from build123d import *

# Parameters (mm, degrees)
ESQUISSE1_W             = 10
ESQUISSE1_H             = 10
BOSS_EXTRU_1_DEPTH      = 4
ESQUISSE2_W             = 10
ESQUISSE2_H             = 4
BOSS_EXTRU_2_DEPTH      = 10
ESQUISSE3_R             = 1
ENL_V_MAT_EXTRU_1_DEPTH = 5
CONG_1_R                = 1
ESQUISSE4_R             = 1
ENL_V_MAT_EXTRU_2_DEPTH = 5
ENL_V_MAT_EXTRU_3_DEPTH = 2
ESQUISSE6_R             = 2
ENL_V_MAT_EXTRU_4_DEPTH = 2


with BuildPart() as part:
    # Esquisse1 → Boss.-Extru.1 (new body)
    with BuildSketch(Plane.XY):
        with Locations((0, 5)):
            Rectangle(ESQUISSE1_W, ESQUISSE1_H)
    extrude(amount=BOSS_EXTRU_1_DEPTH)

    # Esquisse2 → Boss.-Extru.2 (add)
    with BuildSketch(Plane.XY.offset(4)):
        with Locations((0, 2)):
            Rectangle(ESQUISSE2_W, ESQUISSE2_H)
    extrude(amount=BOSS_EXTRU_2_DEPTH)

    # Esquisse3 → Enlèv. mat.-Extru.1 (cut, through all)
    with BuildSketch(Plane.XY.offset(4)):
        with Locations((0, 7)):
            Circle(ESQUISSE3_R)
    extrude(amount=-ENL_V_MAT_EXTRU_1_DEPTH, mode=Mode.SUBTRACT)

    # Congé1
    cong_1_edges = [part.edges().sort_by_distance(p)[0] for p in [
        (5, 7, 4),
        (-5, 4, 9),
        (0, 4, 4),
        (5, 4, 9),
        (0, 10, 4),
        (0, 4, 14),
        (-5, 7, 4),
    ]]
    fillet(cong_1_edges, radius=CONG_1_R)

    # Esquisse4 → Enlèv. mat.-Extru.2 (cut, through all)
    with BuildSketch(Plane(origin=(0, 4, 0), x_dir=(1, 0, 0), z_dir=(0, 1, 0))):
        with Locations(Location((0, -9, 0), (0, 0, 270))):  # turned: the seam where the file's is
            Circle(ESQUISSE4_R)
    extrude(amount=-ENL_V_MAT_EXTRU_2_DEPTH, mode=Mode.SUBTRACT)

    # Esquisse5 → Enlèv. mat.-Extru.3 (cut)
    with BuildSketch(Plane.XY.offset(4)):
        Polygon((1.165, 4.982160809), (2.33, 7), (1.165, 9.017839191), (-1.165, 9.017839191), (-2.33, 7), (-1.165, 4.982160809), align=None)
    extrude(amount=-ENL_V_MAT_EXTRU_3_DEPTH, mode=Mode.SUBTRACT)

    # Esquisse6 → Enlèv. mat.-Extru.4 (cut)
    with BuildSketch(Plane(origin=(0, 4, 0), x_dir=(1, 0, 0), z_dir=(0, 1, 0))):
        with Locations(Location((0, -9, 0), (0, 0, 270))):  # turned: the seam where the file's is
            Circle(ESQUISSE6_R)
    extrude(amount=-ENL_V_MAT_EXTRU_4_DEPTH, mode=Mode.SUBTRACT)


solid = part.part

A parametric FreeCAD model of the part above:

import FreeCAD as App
import Part
import Sketcher
from FreeCAD import Vector
Q = App.Units.Quantity


def edges_at(feature, points):
    """Names of the edges that pass closest to the given points."""
    edges = feature.Shape.Edges
    near = lambda p: min(range(len(edges)), key=lambda i: edges[i].distToShape(Part.Vertex(*p))[0])
    return sorted({f"Edge{near(p) + 1}" for p in points})

doc = App.newDocument("Part")
body = doc.addObject("PartDesign::Body", "Body")

sketch1 = body.newObject("Sketcher::SketchObject", "Sketch")
sketch1.AttachmentSupport = (doc.getObject("XY_Plane"), [""])
sketch1.MapMode = "FlatFace"
sketch1.addGeometry([
    Part.LineSegment(Vector(-5, 10, 0), Vector(-5, 0, 0)),
    Part.LineSegment(Vector(-5, 0, 0), Vector(5, 0, 0)),
    Part.LineSegment(Vector(5, 0, 0), Vector(5, 10, 0)),
    Part.LineSegment(Vector(5, 10, 0), Vector(-5, 10, 0)),
], False)
sketch1.addConstraint([
    Sketcher.Constraint("Coincident", 0, 2, 1, 1),
    Sketcher.Constraint("Coincident", 1, 2, 2, 1),
    Sketcher.Constraint("Coincident", 2, 2, 3, 1),
    Sketcher.Constraint("Coincident", 3, 2, 0, 1),
    Sketcher.Constraint("Vertical", 0),
    Sketcher.Constraint("Horizontal", 1),
    Sketcher.Constraint("Vertical", 2),
    Sketcher.Constraint("Horizontal", 3),
    Sketcher.Constraint("Symmetric", 0, 2, 1, 2, -1, 1),
    Sketcher.Constraint("Equal", 3, 0),
    Sketcher.Constraint("DistanceX", 1, 1, 1, 2, Q("10 mm")),
])
pad1 = body.newObject("PartDesign::Pad", "Pad")
pad1.Profile = sketch1
pad1.Length = 4

sketch2 = body.newObject("Sketcher::SketchObject", "Sketch001")
sketch2.AttachmentSupport = (doc.getObject("XY_Plane"), [""])
sketch2.MapMode = "FlatFace"
sketch2.AttachmentOffset = App.Placement(Vector(0, 0, 4), App.Rotation())
sketch2.addGeometry([
    Part.LineSegment(Vector(-5, 4, 0), Vector(-5, 0, 0)),
    Part.LineSegment(Vector(-5, 0, 0), Vector(5, 0, 0)),
    Part.LineSegment(Vector(5, 0, 0), Vector(5, 4, 0)),
    Part.LineSegment(Vector(5, 4, 0), Vector(-5, 4, 0)),
], False)
sketch2.addConstraint([
    Sketcher.Constraint("Coincident", 0, 2, 1, 1),
    Sketcher.Constraint("Coincident", 1, 2, 2, 1),
    Sketcher.Constraint("Coincident", 2, 2, 3, 1),
    Sketcher.Constraint("Coincident", 3, 2, 0, 1),
    Sketcher.Constraint("Vertical", 0),
    Sketcher.Constraint("Horizontal", 1),
    Sketcher.Constraint("Vertical", 2),
    Sketcher.Constraint("Horizontal", 3),
    Sketcher.Constraint("Symmetric", 0, 2, 1, 2, -1, 1),
    Sketcher.Constraint("DistanceX", 1, 1, 1, 2, Q("10 mm")),
    Sketcher.Constraint("DistanceY", 0, 2, 0, 1, Q("4 mm")),
])
pad2 = body.newObject("PartDesign::Pad", "Pad001")
pad2.Profile = sketch2
pad2.Length = 10

sketch3 = body.newObject("Sketcher::SketchObject", "Sketch002")
sketch3.AttachmentSupport = (doc.getObject("XY_Plane"), [""])
sketch3.MapMode = "FlatFace"
sketch3.AttachmentOffset = App.Placement(Vector(0, 0, 4), App.Rotation())
sketch3.addGeometry(Part.Circle(Vector(0, 7, 0), Vector(0, 0, 1), 1), False)
sketch3.addConstraint([
    Sketcher.Constraint("PointOnObject", 0, 3, -2),
    Sketcher.Constraint("Diameter", 0, Q("2 mm")),
    Sketcher.Constraint("DistanceY", -1, 1, 0, 3, Q("7 mm")),
])
pocket1 = body.newObject("PartDesign::Pocket", "Pocket")
pocket1.Profile = sketch3
pocket1.Type = "ThroughAll"
doc.recompute()

fillet = body.newObject("PartDesign::Fillet", "Fillet")
fillet.Base = (pocket1, edges_at(pocket1, [
    (5, 7, 4),
    (-5, 4, 9),
    (0, 4, 4),
    (5, 4, 9),
    (0, 10, 4),
    (0, 4, 14),
    (-5, 7, 4),
]))
fillet.Radius = 1

sketch4 = body.newObject("Sketcher::SketchObject", "Sketch003")
sketch4.AttachmentSupport = (doc.getObject("XZ_Plane"), [""])
sketch4.MapMode = "FlatFace"
sketch4.AttachmentOffset = App.Placement(Vector(0, 0, -4), App.Rotation())
sketch4.addGeometry(Part.Circle(Vector(0, 9, 0), Vector(0, 0, 1), 1), False)
sketch4.addConstraint([
    Sketcher.Constraint("PointOnObject", 0, 3, -2),
    Sketcher.Constraint("Diameter", 0, Q("2 mm")),
    Sketcher.Constraint("DistanceY", -1, 1, 0, 3, Q("9 mm")),
])
pocket2 = body.newObject("PartDesign::Pocket", "Pocket001")
pocket2.Profile = sketch4
pocket2.Type = "ThroughAll"
pocket2.Reversed = True

sketch5 = body.newObject("Sketcher::SketchObject", "Sketch004")
sketch5.AttachmentSupport = (doc.getObject("XY_Plane"), [""])
sketch5.MapMode = "FlatFace"
sketch5.AttachmentOffset = App.Placement(Vector(0, 0, 4), App.Rotation())
sketch5.addGeometry([
    Part.LineSegment(Vector(1.2, 5, 0), Vector(2.3, 7, 0)),
    Part.LineSegment(Vector(2.3, 7, 0), Vector(1.2, 9, 0)),
    Part.LineSegment(Vector(1.2, 9, 0), Vector(-1.2, 9, 0)),
    Part.LineSegment(Vector(-1.2, 9, 0), Vector(-2.3, 7, 0)),
    Part.LineSegment(Vector(-2.3, 7, 0), Vector(-1.2, 5, 0)),
    Part.LineSegment(Vector(-1.2, 5, 0), Vector(1.2, 5, 0)),
], False)
sketch5.addConstraint([
    Sketcher.Constraint("Coincident", 0, 2, 1, 1),
    Sketcher.Constraint("Coincident", 1, 2, 2, 1),
    Sketcher.Constraint("Coincident", 2, 2, 3, 1),
    Sketcher.Constraint("Coincident", 3, 2, 4, 1),
    Sketcher.Constraint("Coincident", 4, 2, 5, 1),
    Sketcher.Constraint("Coincident", 5, 2, 0, 1),
    Sketcher.Constraint("Horizontal", 2),
    Sketcher.Constraint("Horizontal", 5),
    Sketcher.Constraint("Symmetric", 0, 2, 3, 2, -2),
    Sketcher.Constraint("Parallel", 0, 3),
    Sketcher.Constraint("Parallel", 1, 4),
    Sketcher.Constraint("Vertical", 2, 2, 4, 2),
    Sketcher.Constraint("Vertical", 1, 2, 5, 2),
    Sketcher.Constraint("Angle", 0, Q("60 deg")),
    Sketcher.Constraint("DistanceY", -1, 1, 0, 2, Q("7 mm")),
    Sketcher.Constraint("DistanceX", 2, 2, 2, 1, Q("2.33 mm")),
    Sketcher.Constraint("Distance", 0, Q("2.33 mm")),
])
pocket3 = body.newObject("PartDesign::Pocket", "Pocket002")
pocket3.Profile = sketch5
pocket3.Length = 2

sketch6 = body.newObject("Sketcher::SketchObject", "Sketch005")
sketch6.AttachmentSupport = (doc.getObject("XZ_Plane"), [""])
sketch6.MapMode = "FlatFace"
sketch6.AttachmentOffset = App.Placement(Vector(0, 0, -4), App.Rotation())
sketch6.addGeometry(Part.Circle(Vector(0, 9, 0), Vector(0, 0, 1), 2), False)
sketch6.addConstraint([
    Sketcher.Constraint("PointOnObject", 0, 3, -2),
    Sketcher.Constraint("Diameter", 0, Q("4 mm")),
    Sketcher.Constraint("DistanceY", -1, 1, 0, 3, Q("9 mm")),
])
pocket4 = body.newObject("PartDesign::Pocket", "Pocket003")
pocket4.Profile = sketch6
pocket4.Length = 2
pocket4.Reversed = True

doc.recompute()
